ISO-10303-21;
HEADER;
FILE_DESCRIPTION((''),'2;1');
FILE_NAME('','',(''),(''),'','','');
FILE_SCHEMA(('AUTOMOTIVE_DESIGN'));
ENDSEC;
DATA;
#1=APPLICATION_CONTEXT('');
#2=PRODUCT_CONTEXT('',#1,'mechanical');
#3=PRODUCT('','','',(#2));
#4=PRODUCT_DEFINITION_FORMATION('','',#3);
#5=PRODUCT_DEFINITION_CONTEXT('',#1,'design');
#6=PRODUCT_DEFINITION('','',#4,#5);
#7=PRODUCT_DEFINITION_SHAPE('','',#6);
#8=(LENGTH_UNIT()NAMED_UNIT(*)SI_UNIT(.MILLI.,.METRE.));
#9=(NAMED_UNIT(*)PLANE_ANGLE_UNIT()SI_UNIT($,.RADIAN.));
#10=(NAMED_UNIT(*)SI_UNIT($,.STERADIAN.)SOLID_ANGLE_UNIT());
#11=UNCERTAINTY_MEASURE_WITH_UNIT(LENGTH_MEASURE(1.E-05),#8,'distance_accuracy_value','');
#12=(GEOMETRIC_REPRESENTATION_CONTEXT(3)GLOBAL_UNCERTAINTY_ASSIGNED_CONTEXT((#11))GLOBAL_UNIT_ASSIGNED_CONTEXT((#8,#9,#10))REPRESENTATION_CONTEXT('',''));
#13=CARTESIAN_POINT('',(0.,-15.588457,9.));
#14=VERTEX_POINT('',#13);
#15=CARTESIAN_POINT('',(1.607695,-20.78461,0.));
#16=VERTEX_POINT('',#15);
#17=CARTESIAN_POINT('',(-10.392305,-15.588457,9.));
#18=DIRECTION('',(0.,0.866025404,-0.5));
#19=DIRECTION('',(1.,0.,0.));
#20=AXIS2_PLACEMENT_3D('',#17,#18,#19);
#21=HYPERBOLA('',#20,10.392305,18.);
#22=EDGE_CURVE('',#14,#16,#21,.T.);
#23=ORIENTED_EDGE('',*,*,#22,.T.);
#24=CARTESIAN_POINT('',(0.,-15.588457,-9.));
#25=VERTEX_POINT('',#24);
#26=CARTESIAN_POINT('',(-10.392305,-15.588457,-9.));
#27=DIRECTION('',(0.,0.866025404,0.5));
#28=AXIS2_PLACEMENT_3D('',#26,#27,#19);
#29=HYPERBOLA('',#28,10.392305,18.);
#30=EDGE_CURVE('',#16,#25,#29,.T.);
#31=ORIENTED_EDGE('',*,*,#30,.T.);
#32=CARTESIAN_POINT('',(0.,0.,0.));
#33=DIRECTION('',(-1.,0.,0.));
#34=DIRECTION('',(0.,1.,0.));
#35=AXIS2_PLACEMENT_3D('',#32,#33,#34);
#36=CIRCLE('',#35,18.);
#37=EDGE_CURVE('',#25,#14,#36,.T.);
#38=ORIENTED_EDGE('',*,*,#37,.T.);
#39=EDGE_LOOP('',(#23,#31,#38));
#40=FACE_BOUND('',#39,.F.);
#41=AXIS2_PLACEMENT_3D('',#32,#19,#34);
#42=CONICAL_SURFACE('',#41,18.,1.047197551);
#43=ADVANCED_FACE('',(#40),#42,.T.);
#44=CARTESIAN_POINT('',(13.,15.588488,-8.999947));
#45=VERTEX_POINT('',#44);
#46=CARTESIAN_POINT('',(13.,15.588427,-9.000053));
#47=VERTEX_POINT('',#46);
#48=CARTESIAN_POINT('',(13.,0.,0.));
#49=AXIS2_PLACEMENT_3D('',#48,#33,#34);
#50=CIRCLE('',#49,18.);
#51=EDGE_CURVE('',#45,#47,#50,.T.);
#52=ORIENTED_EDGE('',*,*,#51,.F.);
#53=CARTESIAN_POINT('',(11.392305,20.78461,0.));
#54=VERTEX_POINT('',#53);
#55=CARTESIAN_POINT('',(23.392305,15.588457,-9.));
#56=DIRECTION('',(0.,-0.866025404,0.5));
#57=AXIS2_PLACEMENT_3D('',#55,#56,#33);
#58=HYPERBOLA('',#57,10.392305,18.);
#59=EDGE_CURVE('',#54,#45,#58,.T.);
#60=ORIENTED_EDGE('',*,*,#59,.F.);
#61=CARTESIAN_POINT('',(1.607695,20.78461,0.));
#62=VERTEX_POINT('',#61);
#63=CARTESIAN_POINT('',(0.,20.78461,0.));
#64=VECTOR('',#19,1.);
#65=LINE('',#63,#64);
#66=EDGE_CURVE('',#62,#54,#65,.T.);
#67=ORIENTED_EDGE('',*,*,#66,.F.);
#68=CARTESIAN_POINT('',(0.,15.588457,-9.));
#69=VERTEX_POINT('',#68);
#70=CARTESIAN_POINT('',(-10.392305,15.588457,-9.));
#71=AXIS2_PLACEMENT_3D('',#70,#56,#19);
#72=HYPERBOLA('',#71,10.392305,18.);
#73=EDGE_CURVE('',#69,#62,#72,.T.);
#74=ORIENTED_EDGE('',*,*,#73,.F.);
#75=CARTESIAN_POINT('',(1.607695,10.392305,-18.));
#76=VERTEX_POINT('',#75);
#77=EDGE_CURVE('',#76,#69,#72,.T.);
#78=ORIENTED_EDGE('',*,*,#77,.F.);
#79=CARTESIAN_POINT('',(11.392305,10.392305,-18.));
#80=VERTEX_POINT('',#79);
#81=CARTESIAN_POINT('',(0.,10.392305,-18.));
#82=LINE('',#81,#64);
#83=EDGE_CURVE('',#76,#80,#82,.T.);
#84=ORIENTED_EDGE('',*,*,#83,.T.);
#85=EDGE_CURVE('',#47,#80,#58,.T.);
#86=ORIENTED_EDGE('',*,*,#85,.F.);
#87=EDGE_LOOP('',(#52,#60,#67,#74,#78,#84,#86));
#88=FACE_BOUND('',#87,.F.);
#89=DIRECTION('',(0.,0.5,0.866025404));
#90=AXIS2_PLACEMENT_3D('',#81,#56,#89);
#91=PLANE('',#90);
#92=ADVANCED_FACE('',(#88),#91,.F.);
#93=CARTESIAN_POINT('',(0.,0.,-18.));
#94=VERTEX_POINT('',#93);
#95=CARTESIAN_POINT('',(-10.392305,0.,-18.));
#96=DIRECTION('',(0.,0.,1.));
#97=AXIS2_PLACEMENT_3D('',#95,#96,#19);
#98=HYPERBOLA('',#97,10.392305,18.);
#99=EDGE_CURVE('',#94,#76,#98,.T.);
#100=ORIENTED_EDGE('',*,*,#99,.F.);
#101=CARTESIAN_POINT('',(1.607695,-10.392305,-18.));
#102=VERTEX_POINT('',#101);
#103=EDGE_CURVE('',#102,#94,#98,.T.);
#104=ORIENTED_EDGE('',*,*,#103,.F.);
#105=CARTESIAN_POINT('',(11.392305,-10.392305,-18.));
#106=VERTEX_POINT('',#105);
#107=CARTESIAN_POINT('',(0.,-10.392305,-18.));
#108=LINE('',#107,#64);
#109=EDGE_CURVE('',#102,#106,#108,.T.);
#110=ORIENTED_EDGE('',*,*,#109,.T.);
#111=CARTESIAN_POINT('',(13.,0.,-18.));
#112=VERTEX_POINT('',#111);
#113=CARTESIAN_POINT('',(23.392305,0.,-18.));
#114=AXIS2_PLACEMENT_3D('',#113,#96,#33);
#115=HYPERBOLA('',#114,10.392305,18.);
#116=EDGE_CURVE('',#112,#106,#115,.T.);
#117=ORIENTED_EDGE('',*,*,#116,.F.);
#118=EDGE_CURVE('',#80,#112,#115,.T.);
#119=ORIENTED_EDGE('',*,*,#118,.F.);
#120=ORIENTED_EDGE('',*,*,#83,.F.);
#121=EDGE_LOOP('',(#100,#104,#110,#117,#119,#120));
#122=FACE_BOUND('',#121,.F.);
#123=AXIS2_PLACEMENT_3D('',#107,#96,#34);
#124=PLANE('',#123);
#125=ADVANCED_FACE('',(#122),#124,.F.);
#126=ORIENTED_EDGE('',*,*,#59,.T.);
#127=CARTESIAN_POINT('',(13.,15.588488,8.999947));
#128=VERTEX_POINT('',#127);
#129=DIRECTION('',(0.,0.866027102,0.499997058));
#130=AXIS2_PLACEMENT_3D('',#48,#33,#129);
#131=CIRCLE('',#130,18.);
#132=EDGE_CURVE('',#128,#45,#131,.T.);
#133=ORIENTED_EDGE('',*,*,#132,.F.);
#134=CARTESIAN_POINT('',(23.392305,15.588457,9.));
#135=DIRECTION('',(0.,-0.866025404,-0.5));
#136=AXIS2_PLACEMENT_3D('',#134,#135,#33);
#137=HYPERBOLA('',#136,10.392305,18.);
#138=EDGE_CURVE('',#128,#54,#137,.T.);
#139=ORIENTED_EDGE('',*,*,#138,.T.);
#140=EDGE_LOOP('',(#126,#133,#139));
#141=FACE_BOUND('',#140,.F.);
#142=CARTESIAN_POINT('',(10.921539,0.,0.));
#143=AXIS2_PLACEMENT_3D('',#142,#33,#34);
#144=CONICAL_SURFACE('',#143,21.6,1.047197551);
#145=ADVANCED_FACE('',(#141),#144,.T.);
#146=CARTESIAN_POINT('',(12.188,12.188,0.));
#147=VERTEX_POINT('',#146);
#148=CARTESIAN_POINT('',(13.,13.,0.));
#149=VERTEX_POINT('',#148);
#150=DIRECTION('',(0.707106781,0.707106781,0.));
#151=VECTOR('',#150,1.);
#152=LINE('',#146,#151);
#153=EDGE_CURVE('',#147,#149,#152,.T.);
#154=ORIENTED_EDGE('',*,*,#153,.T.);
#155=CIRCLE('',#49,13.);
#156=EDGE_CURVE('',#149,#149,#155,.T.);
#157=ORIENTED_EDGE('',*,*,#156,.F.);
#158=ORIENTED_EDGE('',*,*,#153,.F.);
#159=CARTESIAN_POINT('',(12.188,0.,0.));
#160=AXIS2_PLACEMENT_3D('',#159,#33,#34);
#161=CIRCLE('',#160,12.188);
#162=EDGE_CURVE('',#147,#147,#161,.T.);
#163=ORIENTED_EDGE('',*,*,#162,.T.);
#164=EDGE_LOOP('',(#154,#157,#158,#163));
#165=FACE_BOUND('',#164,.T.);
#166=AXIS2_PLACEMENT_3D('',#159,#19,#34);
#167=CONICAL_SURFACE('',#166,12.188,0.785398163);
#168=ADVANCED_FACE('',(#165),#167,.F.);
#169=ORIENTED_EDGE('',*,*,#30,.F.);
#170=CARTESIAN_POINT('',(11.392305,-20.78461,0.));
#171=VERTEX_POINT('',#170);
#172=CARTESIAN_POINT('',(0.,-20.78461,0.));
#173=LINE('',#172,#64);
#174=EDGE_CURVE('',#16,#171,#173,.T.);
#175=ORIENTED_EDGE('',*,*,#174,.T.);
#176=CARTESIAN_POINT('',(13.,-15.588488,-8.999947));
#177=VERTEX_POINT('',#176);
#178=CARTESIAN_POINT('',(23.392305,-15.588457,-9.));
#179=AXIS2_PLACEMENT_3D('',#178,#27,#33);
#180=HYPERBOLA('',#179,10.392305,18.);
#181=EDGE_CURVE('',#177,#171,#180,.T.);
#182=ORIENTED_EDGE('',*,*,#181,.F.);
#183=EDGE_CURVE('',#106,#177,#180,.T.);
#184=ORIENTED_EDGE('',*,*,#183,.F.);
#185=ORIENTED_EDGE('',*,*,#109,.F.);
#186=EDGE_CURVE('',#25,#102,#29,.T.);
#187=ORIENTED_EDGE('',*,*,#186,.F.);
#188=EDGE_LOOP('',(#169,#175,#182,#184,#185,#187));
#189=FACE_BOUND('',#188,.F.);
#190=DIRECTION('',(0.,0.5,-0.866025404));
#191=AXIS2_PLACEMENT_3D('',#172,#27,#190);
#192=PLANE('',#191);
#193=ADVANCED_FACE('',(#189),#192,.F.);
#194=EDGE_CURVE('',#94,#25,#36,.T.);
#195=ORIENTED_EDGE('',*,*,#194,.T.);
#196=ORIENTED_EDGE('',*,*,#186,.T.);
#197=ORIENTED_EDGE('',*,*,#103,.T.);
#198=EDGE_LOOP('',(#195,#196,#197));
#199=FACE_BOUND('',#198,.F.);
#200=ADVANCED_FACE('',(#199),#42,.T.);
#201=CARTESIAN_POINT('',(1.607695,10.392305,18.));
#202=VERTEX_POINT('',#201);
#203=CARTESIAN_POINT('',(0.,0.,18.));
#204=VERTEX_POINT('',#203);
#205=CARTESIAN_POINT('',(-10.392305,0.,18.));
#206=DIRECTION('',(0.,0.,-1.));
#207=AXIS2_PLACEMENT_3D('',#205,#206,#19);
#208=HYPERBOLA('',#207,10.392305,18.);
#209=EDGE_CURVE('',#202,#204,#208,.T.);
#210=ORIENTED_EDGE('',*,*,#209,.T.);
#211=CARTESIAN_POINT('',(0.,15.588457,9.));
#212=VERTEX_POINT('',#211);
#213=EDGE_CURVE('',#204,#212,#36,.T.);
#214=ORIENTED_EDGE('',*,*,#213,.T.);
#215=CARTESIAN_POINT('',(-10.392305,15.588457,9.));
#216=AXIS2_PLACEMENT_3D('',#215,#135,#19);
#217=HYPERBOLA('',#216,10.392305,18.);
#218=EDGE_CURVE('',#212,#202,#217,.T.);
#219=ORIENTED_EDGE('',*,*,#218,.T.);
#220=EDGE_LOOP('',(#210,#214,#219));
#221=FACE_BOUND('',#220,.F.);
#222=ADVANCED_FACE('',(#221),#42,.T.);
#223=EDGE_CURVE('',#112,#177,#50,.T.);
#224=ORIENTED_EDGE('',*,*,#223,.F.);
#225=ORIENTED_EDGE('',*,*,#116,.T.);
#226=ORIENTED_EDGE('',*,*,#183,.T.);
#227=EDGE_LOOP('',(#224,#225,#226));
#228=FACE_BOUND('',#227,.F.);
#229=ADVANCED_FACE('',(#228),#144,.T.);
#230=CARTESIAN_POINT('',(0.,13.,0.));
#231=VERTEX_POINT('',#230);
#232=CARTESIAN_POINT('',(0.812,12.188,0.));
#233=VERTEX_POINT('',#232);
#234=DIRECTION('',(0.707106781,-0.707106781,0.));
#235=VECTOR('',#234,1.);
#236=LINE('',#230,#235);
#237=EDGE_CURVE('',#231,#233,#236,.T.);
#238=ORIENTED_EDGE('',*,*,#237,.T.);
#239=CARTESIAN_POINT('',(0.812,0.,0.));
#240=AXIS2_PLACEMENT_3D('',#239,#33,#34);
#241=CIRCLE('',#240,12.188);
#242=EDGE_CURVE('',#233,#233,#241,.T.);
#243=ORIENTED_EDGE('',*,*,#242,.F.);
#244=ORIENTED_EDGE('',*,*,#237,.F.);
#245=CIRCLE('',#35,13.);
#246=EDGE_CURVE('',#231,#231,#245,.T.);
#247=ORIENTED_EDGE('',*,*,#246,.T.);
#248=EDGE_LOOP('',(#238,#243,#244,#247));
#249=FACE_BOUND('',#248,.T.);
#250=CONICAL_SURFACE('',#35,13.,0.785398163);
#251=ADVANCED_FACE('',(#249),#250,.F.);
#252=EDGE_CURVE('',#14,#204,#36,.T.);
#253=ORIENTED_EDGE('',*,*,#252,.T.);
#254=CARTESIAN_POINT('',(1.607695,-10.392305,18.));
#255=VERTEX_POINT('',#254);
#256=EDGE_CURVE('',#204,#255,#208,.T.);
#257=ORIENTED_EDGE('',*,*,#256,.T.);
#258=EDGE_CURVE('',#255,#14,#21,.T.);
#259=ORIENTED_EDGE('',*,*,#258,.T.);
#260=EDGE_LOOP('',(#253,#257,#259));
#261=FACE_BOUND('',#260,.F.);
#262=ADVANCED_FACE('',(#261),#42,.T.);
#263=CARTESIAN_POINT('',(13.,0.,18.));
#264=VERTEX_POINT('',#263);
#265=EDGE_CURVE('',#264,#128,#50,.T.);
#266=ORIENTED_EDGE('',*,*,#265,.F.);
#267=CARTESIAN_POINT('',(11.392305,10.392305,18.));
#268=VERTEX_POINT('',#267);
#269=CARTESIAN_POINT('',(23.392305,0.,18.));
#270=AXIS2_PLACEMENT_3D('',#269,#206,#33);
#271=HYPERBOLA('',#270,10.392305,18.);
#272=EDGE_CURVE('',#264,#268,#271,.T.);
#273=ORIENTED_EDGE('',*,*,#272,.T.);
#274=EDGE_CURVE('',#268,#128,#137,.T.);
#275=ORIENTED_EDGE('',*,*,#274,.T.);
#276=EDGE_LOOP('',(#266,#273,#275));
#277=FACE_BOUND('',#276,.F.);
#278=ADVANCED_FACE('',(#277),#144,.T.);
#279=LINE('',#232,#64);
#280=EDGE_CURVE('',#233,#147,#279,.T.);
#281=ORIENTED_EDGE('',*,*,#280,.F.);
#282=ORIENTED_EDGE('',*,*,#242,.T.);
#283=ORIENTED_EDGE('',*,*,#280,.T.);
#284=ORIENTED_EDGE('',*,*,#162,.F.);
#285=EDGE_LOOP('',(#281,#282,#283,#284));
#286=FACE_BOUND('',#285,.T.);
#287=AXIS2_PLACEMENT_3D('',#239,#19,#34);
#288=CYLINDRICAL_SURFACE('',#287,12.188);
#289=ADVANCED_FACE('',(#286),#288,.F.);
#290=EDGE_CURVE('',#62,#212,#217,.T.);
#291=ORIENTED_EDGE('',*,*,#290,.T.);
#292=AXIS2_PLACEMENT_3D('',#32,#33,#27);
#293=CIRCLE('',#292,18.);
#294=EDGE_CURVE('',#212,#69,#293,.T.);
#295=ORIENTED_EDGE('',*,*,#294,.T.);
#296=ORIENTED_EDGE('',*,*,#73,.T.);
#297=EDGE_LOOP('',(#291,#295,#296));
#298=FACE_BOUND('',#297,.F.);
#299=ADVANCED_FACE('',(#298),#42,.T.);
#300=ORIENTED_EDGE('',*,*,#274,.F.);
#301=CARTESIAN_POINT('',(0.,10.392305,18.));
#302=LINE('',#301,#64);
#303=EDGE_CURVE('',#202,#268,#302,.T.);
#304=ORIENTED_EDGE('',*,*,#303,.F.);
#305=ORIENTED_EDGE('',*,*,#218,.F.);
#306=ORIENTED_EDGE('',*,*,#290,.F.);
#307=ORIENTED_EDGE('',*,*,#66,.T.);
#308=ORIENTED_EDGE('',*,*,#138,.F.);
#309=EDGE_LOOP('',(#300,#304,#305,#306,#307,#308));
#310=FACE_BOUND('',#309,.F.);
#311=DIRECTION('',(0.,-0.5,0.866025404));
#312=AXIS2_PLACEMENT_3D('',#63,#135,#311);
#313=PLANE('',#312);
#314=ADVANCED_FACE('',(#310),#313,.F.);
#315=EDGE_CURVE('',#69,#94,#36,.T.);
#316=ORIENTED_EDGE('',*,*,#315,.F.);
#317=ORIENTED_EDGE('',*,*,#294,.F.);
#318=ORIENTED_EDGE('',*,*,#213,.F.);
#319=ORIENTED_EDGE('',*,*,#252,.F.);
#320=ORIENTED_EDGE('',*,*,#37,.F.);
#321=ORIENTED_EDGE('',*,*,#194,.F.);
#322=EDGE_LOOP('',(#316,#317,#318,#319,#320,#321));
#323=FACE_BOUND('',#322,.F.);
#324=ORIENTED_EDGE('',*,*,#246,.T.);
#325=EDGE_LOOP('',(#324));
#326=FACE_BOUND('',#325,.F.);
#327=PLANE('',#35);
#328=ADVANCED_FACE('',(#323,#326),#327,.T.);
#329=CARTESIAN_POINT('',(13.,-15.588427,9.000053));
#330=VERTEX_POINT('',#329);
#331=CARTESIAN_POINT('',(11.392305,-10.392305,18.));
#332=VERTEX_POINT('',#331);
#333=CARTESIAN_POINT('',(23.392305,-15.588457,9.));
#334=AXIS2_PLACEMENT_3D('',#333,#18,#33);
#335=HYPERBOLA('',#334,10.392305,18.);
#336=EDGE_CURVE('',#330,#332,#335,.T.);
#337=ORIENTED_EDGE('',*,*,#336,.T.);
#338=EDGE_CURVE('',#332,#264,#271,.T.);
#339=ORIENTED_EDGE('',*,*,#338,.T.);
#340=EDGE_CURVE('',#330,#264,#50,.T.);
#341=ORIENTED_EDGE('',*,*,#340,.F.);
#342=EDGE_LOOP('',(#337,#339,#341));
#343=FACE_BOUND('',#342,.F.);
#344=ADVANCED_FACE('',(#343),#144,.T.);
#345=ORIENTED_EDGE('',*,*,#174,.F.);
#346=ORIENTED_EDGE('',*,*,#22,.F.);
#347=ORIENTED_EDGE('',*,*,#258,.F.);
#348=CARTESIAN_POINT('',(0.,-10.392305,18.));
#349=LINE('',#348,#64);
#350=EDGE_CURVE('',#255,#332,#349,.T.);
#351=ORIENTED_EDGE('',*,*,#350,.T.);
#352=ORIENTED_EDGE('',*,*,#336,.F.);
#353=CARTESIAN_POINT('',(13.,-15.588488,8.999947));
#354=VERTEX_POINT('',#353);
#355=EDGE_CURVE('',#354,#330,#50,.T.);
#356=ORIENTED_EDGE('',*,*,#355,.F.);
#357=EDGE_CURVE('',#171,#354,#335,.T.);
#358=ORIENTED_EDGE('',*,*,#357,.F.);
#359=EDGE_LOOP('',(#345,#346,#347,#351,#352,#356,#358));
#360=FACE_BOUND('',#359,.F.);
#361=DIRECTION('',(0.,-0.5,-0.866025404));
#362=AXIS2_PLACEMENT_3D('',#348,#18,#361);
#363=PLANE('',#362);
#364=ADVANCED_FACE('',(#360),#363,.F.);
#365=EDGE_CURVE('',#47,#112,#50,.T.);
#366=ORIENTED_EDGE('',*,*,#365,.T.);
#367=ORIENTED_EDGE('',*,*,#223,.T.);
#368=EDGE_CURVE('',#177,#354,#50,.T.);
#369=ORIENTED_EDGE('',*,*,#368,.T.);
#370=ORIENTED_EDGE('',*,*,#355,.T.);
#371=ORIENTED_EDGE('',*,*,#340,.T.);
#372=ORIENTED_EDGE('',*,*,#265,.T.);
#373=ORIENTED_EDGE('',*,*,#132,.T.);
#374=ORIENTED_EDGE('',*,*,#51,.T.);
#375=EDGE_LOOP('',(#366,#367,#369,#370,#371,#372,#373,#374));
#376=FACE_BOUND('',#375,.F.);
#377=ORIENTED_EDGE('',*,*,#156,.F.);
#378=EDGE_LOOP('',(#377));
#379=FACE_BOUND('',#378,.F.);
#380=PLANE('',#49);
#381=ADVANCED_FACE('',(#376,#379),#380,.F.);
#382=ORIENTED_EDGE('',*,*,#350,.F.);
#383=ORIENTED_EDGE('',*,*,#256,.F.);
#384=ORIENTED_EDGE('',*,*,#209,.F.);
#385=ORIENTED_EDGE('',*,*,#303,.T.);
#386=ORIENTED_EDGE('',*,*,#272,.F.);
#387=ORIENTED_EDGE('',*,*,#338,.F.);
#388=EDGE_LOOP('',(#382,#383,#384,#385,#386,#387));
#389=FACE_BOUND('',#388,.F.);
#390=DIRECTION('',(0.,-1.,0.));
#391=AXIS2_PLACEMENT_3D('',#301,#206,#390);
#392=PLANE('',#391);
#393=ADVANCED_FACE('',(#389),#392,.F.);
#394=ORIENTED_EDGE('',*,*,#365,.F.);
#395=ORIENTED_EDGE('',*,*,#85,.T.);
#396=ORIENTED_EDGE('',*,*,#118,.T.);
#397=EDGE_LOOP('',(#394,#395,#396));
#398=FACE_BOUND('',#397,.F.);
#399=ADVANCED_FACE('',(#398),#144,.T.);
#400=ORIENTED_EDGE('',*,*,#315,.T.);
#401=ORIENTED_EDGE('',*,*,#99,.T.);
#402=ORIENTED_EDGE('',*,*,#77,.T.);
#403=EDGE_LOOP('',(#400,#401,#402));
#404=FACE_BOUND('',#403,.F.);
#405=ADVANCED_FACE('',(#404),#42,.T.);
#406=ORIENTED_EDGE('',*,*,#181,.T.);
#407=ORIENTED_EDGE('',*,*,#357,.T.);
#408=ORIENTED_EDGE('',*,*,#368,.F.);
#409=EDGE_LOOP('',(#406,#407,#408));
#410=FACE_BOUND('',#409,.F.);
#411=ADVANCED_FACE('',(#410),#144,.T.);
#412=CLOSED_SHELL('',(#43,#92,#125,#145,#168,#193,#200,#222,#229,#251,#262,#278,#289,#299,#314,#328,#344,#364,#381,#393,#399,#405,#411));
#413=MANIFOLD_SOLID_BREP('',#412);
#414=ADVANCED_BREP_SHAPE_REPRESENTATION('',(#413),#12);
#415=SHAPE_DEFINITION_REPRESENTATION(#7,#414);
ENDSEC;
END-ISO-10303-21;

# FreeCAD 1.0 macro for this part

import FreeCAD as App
import Part
import Sketcher
Q = App.Units.Quantity


def add_polygon(sketch, points):
    """Adds a closed chain of lines whose ends are joined by coincident constraints."""
    first, n = sketch.GeometryCount, len(points)
    for a, b in zip(points, points[1:] + points[:1]):
        sketch.addGeometry(Part.LineSegment(App.Vector(*a, 0), App.Vector(*b, 0)), False)
    for i in range(n):
        sketch.addConstraint(Sketcher.Constraint("Coincident", first + i, 2, first + (i + 1) % n, 1))

doc = App.newDocument("Part")
params = doc.addObject("Spreadsheet::Sheet", "Params")
for row, (alias, value) in enumerate([
    ("sketch1_width", "13 mm"),
    ("sketch1_height", "18 mm"),
    ("revolution_angle", "360 deg"),
    ("sketch2_width", "72 mm"),
    ("pocket1_length", "26 mm"),
    ("sketch3_width", "13 mm"),
    ("groove_angle", "360 deg"),
], start=1):
    params.set(f"A{row}", alias)
    params.set(f"B{row}", "=" + value)
    params.setAlias(f"B{row}", alias)

body = doc.addObject("PartDesign::Body", "Body")

# Sketch on XY plane
sketch1 = doc.addObject("Sketcher::SketchObject", "Sketch")
body.addObject(sketch1)
sketch1.AttachmentSupport = (doc.XY_Plane, [""])
sketch1.MapMode = "FlatFace"
add_polygon(sketch1, [(0, 18), (0, 0), (13, 0), (13, 18), (10.9, 21.6), (2.1, 21.6)])  # lines 0-5
sketch1.addConstraint([
    Sketcher.Constraint("Vertical", 0),
    Sketcher.Constraint("Horizontal", 1),
    Sketcher.Constraint("Vertical", 2),
    Sketcher.Constraint("Horizontal", 4),
    Sketcher.Constraint("Coincident", 0, 2, -1, 1),
    Sketcher.Constraint("Horizontal", 2, 2, 5, 2),
    Sketcher.Constraint("Equal", 3, 5),
    Sketcher.Constraint("DistanceX", 1, 1, 1, 2, 13.0),
    Sketcher.Constraint("DistanceY", 0, 2, 0, 1, 18.0),
    Sketcher.Constraint("Angle", 3, Q("120 deg")),
    Sketcher.Constraint("DistanceY", -1, 1, 3, 2, 21.6),
])
sketch1.setExpression("Constraints[13]", "Params.sketch1_width")
sketch1.setExpression("Constraints[14]", "Params.sketch1_height")
revolution = doc.addObject("PartDesign::Revolution", "Revolution")
body.addObject(revolution)
revolution.Profile = sketch1
revolution.ReferenceAxis = (sketch1, ["H_Axis"])
revolution.setExpression("Angle", "Params.revolution_angle")

# Sketch on YZ plane
sketch2 = doc.addObject("Sketcher::SketchObject", "Sketch001")
body.addObject(sketch2)
sketch2.AttachmentSupport = (doc.YZ_Plane, [""])
sketch2.MapMode = "FlatFace"
add_polygon(sketch2, [(36, 36), (-36, 36), (-36, -36), (36, -36)])  # lines 0-3
add_polygon(sketch2, [(-21, 0), (-10, 18), (10, 18), (21, 0), (10, -18), (-10, -18)])  # lines 4-9
sketch2.addConstraint([
    Sketcher.Constraint("Horizontal", 0),
    Sketcher.Constraint("Vertical", 1),
    Sketcher.Constraint("Horizontal", 2),
    Sketcher.Constraint("Vertical", 3),
    Sketcher.Constraint("Horizontal", 5),
    Sketcher.Constraint("Horizontal", 8),
    Sketcher.Constraint("Symmetric", 0, 2, 2, 2, -1, 1),
    Sketcher.Constraint("Symmetric", 4, 2, 7, 2, -1, 1),
    Sketcher.Constraint("Symmetric", 6, 2, 9, 2, -1, 1),
    Sketcher.Constraint("PointOnObject", 6, 2, -1),
    Sketcher.Constraint("Parallel", 6, 9),
    Sketcher.Constraint("Vertical", 5, 2, 7, 2),
    Sketcher.Constraint("Equal", 2, 1),
    Sketcher.Constraint("DistanceX", 0, 2, 0, 1, 72.0),
    Sketcher.Constraint("Angle", 4, Q("60 deg")),
    Sketcher.Constraint("DistanceY", -1, 1, 4, 2, 18.0),
    Sketcher.Constraint("DistanceX", 5, 1, 5, 2, 20.78461),
])
sketch2.setExpression("Constraints[23]", "Params.sketch2_width")
pocket1 = doc.addObject("PartDesign::Pocket", "Pocket")
body.addObject(pocket1)
pocket1.Profile = sketch2
pocket1.setExpression("Length", "Params.pocket1_length")
pocket1.Reversed = True

# Sketch on XY plane
sketch3 = doc.addObject("Sketcher::SketchObject", "Sketch002")
body.addObject(sketch3)
sketch3.AttachmentSupport = (doc.XY_Plane, [""])
sketch3.MapMode = "FlatFace"
add_polygon(sketch3, [(0, 13), (0, 0), (13, 0), (13, 13), (12.2, 12.2), (0.8, 12.2)])  # lines 0-5
sketch3.addConstraint([
    Sketcher.Constraint("Vertical", 0),
    Sketcher.Constraint("Horizontal", 1),
    Sketcher.Constraint("Vertical", 2),
    Sketcher.Constraint("Horizontal", 4),
    Sketcher.Constraint("Coincident", 0, 2, -1, 1),
    Sketcher.Constraint("Perpendicular", 3, 5),
    Sketcher.Constraint("Horizontal", 2, 2, 5, 2),
    Sketcher.Constraint("Equal", 1, 0),
    Sketcher.Constraint("Equal", 3, 5),
    Sketcher.Constraint("DistanceX", 1, 1, 1, 2, 13.0),
    Sketcher.Constraint("DistanceX", 4, 2, 4, 1, 11.376),
])
sketch3.setExpression("Constraints[15]", "Params.sketch3_width")
groove = doc.addObject("PartDesign::Groove", "Groove")
body.addObject(groove)
groove.Profile = sketch3
groove.ReferenceAxis = (sketch3, ["H_Axis"])
groove.setExpression("Angle", "Params.groove_angle")

doc.recompute()
